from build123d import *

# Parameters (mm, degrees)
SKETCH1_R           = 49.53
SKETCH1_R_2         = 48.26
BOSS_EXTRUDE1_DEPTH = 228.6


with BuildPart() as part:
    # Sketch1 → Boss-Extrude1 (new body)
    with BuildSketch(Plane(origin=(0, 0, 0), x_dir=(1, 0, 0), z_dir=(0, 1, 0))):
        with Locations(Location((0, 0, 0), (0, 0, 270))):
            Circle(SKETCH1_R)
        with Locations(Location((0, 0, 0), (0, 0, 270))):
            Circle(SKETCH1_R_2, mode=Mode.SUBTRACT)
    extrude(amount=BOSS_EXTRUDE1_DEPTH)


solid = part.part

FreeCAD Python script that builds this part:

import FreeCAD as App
import Part
import Sketcher
from FreeCAD import Vector
Q = App.Units.Quantity

doc = App.newDocument("Part")
body = doc.addObject("PartDesign::Body", "Body")

# Sketch on XZ plane
sketch1 = body.newObject("Sketcher::SketchObject", "Sketch")
sketch1.AttachmentSupport = (doc.getObject("XZ_Plane"), [""])
sketch1.MapMode = "FlatFace"
sketch1.addGeometry(Part.Circle(Vector(0, 0, 0), Vector(0, 0, 1), 49.53), False)
sketch1.addGeometry(Part.Circle(Vector(0, 0, 0), Vector(0, 0, 1), 48.26), False)
sketch1.addConstraint(Sketcher.Constraint("Coincident", 0, 3, -1, 1))
sketch1.addConstraint(Sketcher.Constraint("Coincident", 1, 3, -1, 1))
sketch1.addConstraint(Sketcher.Constraint("Diameter", 0, Q("3.9 in")))
sketch1.addConstraint(Sketcher.Constraint("Diameter", 1, Q("3.8 in")))
pad1 = body.newObject("PartDesign::Pad", "Pad")
pad1.Profile = sketch1
pad1.Length = Q("9 in")
pad1.Reversed = True

doc.recompute()
